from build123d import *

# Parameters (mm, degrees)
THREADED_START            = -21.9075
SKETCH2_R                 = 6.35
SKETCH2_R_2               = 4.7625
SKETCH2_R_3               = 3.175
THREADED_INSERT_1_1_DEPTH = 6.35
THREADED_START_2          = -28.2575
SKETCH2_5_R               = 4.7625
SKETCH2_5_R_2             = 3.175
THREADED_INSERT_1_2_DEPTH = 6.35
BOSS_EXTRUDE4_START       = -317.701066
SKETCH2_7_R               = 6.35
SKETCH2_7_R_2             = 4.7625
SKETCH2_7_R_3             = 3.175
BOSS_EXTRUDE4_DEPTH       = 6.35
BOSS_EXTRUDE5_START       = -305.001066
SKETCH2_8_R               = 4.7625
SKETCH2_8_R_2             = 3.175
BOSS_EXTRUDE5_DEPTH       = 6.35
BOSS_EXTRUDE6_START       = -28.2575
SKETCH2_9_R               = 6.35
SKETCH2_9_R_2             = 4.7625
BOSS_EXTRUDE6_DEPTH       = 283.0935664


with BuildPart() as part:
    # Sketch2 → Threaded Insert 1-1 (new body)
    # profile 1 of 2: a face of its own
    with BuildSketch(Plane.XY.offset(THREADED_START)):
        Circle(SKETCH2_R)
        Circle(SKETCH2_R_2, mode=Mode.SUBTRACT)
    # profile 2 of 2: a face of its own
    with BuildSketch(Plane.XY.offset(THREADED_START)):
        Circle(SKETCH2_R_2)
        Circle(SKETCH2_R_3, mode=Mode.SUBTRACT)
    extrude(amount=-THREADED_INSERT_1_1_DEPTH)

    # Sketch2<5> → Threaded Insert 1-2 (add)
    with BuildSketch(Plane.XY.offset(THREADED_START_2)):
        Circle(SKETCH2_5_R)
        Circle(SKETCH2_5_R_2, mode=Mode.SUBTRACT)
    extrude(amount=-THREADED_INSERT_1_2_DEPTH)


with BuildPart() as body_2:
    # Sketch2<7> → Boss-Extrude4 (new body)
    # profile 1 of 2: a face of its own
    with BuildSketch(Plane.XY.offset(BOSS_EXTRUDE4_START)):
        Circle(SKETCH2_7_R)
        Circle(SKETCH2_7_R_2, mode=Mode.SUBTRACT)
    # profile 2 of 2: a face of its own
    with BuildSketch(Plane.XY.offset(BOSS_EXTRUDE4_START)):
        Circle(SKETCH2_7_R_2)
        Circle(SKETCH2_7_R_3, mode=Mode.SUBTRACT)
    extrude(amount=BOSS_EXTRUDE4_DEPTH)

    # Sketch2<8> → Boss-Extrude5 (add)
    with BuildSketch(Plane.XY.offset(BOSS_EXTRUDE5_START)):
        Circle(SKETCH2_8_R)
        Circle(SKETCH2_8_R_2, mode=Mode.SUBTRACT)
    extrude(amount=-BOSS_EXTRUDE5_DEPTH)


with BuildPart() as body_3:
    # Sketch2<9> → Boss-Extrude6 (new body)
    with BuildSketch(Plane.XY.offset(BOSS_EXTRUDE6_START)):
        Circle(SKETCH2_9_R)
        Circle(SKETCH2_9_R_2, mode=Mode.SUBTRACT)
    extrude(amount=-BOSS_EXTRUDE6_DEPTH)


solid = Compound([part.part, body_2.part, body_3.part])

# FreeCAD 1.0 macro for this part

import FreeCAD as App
import Part
import Sketcher
from FreeCAD import Vector
Q = App.Units.Quantity

doc = App.newDocument("Part")
params = doc.addObject("Spreadsheet::Sheet", "Params")
for row, (alias, value) in enumerate([
    ("sketch1_diameter", "0.5 in"),
    ("sketch1_diameter2", "0.25 in"),
    ("pad1_length", "0.25 in"),
    ("sketch2_diameter", "0.25 in"),
    ("sketch2_diameter2", "0.375 in"),
    ("pad2_length", "0.25 in"),
    ("sketch3_diameter", "0.5 in"),
    ("sketch3_diameter2", "0.25 in"),
    ("pad3_length", "0.25 in"),
    ("sketch4_diameter", "0.25 in"),
    ("sketch4_diameter2", "0.375 in"),
    ("pad4_length", "0.25 in"),
    ("sketch5_diameter", "0.5 in"),
    ("sketch5_diameter2", "0.375 in"),
    ("pad5_length", "283.093566 mm"),
], start=1):
    params.set(f"A{row}", alias)
    params.set(f"B{row}", "=" + value)
    params.setAlias(f"B{row}", alias)

body = doc.addObject("PartDesign::Body", "Body")

# Sketch on XY plane
sketch1 = body.newObject("Sketcher::SketchObject", "Sketch")
sketch1.AttachmentSupport = (doc.getObject("XY_Plane"), [""])
sketch1.MapMode = "FlatFace"
sketch1.AttachmentOffset = App.Placement(Vector(0, 0, -0.8625 * 25.4), App.Rotation())
sketch1.addGeometry([
    Part.Circle(Vector(0, 0, 0), Vector(0, 0, 1), 6.3),
    Part.Circle(Vector(0, 0, 0), Vector(0, 0, 1), 3.2),
], False)
sketch1.addConstraint([
    Sketcher.Constraint("Coincident", 0, 3, -1, 1),
    Sketcher.Constraint("Coincident", 1, 3, -1, 1),
    Sketcher.Constraint("Diameter", 0, Q("0.5 in")),
    Sketcher.Constraint("Diameter", 1, Q("0.25 in")),
])
sketch1.setExpression("Constraints[2]", "Params.sketch1_diameter")
sketch1.setExpression("Constraints[3]", "Params.sketch1_diameter2")
pad1 = body.newObject("PartDesign::Pad", "Pad")
pad1.Profile = sketch1
pad1.setExpression("Length", "Params.pad1_length")
pad1.Reversed = True

# Sketch on XY plane
sketch2 = body.newObject("Sketcher::SketchObject", "Sketch001")
sketch2.AttachmentSupport = (doc.getObject("XY_Plane"), [""])
sketch2.MapMode = "FlatFace"
sketch2.AttachmentOffset = App.Placement(Vector(0, 0, -1.1125 * 25.4), App.Rotation())
sketch2.addGeometry([
    Part.Circle(Vector(0, 0, 0), Vector(0, 0, 1), 4.8),
    Part.Circle(Vector(0, 0, 0), Vector(0, 0, 1), 3.2),
], False)
sketch2.addConstraint([
    Sketcher.Constraint("Coincident", 0, 3, -1, 1),
    Sketcher.Constraint("Coincident", 1, 3, -1, 1),
    Sketcher.Constraint("Diameter", 1, Q("0.25 in")),
    Sketcher.Constraint("Diameter", 0, Q("0.375 in")),
])
sketch2.setExpression("Constraints[2]", "Params.sketch2_diameter")
sketch2.setExpression("Constraints[3]", "Params.sketch2_diameter2")
pad2 = body.newObject("PartDesign::Pad", "Pad001")
pad2.Profile = sketch2
pad2.setExpression("Length", "Params.pad2_length")
pad2.Reversed = True
body2 = doc.addObject("PartDesign::Body", "Body001")

# Sketch on XY plane
sketch3 = body2.newObject("Sketcher::SketchObject", "Sketch002")
sketch3.AttachmentSupport = (doc.getObject("XY_Plane001"), [""])
sketch3.MapMode = "FlatFace"
sketch3.AttachmentOffset = App.Placement(Vector(0, 0, -317.701066), App.Rotation())
sketch3.addGeometry([
    Part.Circle(Vector(0, 0, 0), Vector(0, 0, 1), 6.3),
    Part.Circle(Vector(0, 0, 0), Vector(0, 0, 1), 3.2),
], False)
sketch3.addConstraint([
    Sketcher.Constraint("Coincident", 0, 3, -1, 1),
    Sketcher.Constraint("Coincident", 1, 3, -1, 1),
    Sketcher.Constraint("Diameter", 0, Q("0.5 in")),
    Sketcher.Constraint("Diameter", 1, Q("0.25 in")),
])
sketch3.setExpression("Constraints[2]", "Params.sketch3_diameter")
sketch3.setExpression("Constraints[3]", "Params.sketch3_diameter2")
pad3 = body2.newObject("PartDesign::Pad", "Pad002")
pad3.Profile = sketch3
pad3.setExpression("Length", "Params.pad3_length")

# Sketch on XY plane
sketch4 = body2.newObject("Sketcher::SketchObject", "Sketch003")
sketch4.AttachmentSupport = (doc.getObject("XY_Plane001"), [""])
sketch4.MapMode = "FlatFace"
sketch4.AttachmentOffset = App.Placement(Vector(0, 0, -305.001066), App.Rotation())
sketch4.addGeometry([
    Part.Circle(Vector(0, 0, 0), Vector(0, 0, 1), 4.8),
    Part.Circle(Vector(0, 0, 0), Vector(0, 0, 1), 3.2),
], False)
sketch4.addConstraint([
    Sketcher.Constraint("Coincident", 0, 3, -1, 1),
    Sketcher.Constraint("Coincident", 1, 3, -1, 1),
    Sketcher.Constraint("Diameter", 1, Q("0.25 in")),
    Sketcher.Constraint("Diameter", 0, Q("0.375 in")),
])
sketch4.setExpression("Constraints[2]", "Params.sketch4_diameter")
sketch4.setExpression("Constraints[3]", "Params.sketch4_diameter2")
pad4 = body2.newObject("PartDesign::Pad", "Pad003")
pad4.Profile = sketch4
pad4.setExpression("Length", "Params.pad4_length")
pad4.Reversed = True
body3 = doc.addObject("PartDesign::Body", "Body002")

# Sketch on XY plane
sketch5 = body3.newObject("Sketcher::SketchObject", "Sketch004")
sketch5.AttachmentSupport = (doc.getObject("XY_Plane002"), [""])
sketch5.MapMode = "FlatFace"
sketch5.AttachmentOffset = App.Placement(Vector(0, 0, -1.1125 * 25.4), App.Rotation())
sketch5.addGeometry([
    Part.Circle(Vector(0, 0, 0), Vector(0, 0, 1), 6.3),
    Part.Circle(Vector(0, 0, 0), Vector(0, 0, 1), 4.8),
], False)
sketch5.addConstraint([
    Sketcher.Constraint("Coincident", 0, 3, -1, 1),
    Sketcher.Constraint("Coincident", 1, 3, -1, 1),
    Sketcher.Constraint("Diameter", 0, Q("0.5 in")),
    Sketcher.Constraint("Diameter", 1, Q("0.375 in")),
])
sketch5.setExpression("Constraints[2]", "Params.sketch5_diameter")
sketch5.setExpression("Constraints[3]", "Params.sketch5_diameter2")
pad5 = body3.newObject("PartDesign::Pad", "Pad004")
pad5.Profile = sketch5
pad5.setExpression("Length", "Params.pad5_length")
pad5.Reversed = True

doc.recompute()
